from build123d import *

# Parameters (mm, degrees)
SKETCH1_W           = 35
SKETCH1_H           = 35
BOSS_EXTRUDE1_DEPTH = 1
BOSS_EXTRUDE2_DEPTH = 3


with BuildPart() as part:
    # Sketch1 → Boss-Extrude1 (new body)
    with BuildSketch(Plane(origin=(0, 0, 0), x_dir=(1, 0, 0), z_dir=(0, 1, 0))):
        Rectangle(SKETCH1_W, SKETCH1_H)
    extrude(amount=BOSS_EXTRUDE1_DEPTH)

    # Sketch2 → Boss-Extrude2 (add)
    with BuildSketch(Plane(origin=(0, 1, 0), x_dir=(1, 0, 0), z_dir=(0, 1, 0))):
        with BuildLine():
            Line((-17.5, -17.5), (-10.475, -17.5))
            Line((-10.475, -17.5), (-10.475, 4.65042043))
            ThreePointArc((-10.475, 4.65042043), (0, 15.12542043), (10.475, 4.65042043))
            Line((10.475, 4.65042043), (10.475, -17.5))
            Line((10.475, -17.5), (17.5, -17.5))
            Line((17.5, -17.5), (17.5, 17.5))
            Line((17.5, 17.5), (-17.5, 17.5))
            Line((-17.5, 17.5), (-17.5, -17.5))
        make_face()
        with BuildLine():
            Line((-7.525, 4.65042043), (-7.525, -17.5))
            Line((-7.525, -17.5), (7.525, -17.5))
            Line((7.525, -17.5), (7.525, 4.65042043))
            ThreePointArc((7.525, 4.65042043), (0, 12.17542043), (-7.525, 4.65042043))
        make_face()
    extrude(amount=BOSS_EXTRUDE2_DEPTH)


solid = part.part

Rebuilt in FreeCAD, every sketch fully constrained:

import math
import FreeCAD as App
import Part
import Sketcher
from FreeCAD import Vector

doc = App.newDocument("Part")
body = doc.addObject("PartDesign::Body", "Body")

sketch1 = body.newObject("Sketcher::SketchObject", "Sketch")
sketch1.AttachmentSupport = (doc.getObject("XZ_Plane"), [""])
sketch1.MapMode = "FlatFace"
sketch1.addGeometry(Part.LineSegment(Vector(-18, -18, 0), Vector(-18, 18, 0)), False)
sketch1.addGeometry(Part.LineSegment(Vector(-18, 18, 0), Vector(18, 18, 0)), False)
sketch1.addGeometry(Part.LineSegment(Vector(18, 18, 0), Vector(18, -18, 0)), False)
sketch1.addGeometry(Part.LineSegment(Vector(18, -18, 0), Vector(-18, -18, 0)), False)
sketch1.addConstraint(Sketcher.Constraint("Coincident", 0, 2, 1, 1))
sketch1.addConstraint(Sketcher.Constraint("Coincident", 1, 2, 2, 1))
sketch1.addConstraint(Sketcher.Constraint("Coincident", 2, 2, 3, 1))
sketch1.addConstraint(Sketcher.Constraint("Coincident", 3, 2, 0, 1))
sketch1.addConstraint(Sketcher.Constraint("Vertical", 0))
sketch1.addConstraint(Sketcher.Constraint("Horizontal", 1))
sketch1.addConstraint(Sketcher.Constraint("Vertical", 2))
sketch1.addConstraint(Sketcher.Constraint("Horizontal", 3))
sketch1.addConstraint(Sketcher.Constraint("Symmetric", 0, 2, 2, 2, -1, 1))
sketch1.addConstraint(Sketcher.Constraint("Equal", 3, 0))
sketch1.addConstraint(Sketcher.Constraint("DistanceX", 1, 1, 1, 2, 35.0))
pad1 = body.newObject("PartDesign::Pad", "Pad")
pad1.Profile = sketch1
pad1.Length = 1
pad1.Reversed = True

sketch2 = body.newObject("Sketcher::SketchObject", "Sketch001")
sketch2.AttachmentSupport = (doc.getObject("XZ_Plane"), [""])
sketch2.MapMode = "FlatFace"
sketch2.AttachmentOffset = App.Placement(Vector(0, 0, -1), App.Rotation())
sketch2.addGeometry(Part.LineSegment(Vector(-18, 18, 0), Vector(-10, 18, 0)), False)
sketch2.addGeometry(Part.LineSegment(Vector(-10, 18, 0), Vector(-10, -5, 0)), False)
sketch2.addGeometry(Part.ArcOfCircle(Part.Circle(Vector(0, -5, 0), Vector(0, 0, 1), 10), math.radians(180), math.radians(360)), False)
sketch2.addGeometry(Part.LineSegment(Vector(10, -5, 0), Vector(10, 18, 0)), False)
sketch2.addGeometry(Part.LineSegment(Vector(10, 18, 0), Vector(18, 18, 0)), False)
sketch2.addGeometry(Part.LineSegment(Vector(18, 18, 0), Vector(18, -18, 0)), False)
sketch2.addGeometry(Part.LineSegment(Vector(18, -18, 0), Vector(-18, -18, 0)), False)
sketch2.addGeometry(Part.LineSegment(Vector(-18, -18, 0), Vector(-18, 18, 0)), False)
sketch2.addGeometry(Part.LineSegment(Vector(-8, -5, 0), Vector(-8, 18, 0)), False)
sketch2.addGeometry(Part.LineSegment(Vector(-8, 18, 0), Vector(8, 18, 0)), False)
sketch2.addGeometry(Part.LineSegment(Vector(8, 18, 0), Vector(8, -5, 0)), False)
sketch2.addGeometry(Part.ArcOfCircle(Part.Circle(Vector(0, -5, 0), Vector(0, 0, 1), 8), math.radians(180), math.radians(360)), False)
sketch2.addConstraint(Sketcher.Constraint("Coincident", 0, 2, 1, 1))
sketch2.addConstraint(Sketcher.Constraint("Tangent", 1, 2, 2, 1))
sketch2.addConstraint(Sketcher.Constraint("Tangent", 2, 2, 3, 1))
sketch2.addConstraint(Sketcher.Constraint("Coincident", 3, 2, 4, 1))
sketch2.addConstraint(Sketcher.Constraint("Coincident", 4, 2, 5, 1))
sketch2.addConstraint(Sketcher.Constraint("Coincident", 5, 2, 6, 1))
sketch2.addConstraint(Sketcher.Constraint("Coincident", 6, 2, 7, 1))
sketch2.addConstraint(Sketcher.Constraint("Coincident", 7, 2, 0, 1))
sketch2.addConstraint(Sketcher.Constraint("Coincident", 8, 2, 9, 1))
sketch2.addConstraint(Sketcher.Constraint("Coincident", 9, 2, 10, 1))
sketch2.addConstraint(Sketcher.Constraint("Tangent", 10, 2, 11, 2))
sketch2.addConstraint(Sketcher.Constraint("Tangent", 11, 1, 8, 1))
sketch2.addConstraint(Sketcher.Constraint("Horizontal", 0))
sketch2.addConstraint(Sketcher.Constraint("Vertical", 1))
sketch2.addConstraint(Sketcher.Constraint("Vertical", 3))
sketch2.addConstraint(Sketcher.Constraint("Horizontal", 4))
sketch2.addConstraint(Sketcher.Constraint("Vertical", 5))
sketch2.addConstraint(Sketcher.Constraint("Horizontal", 6))
sketch2.addConstraint(Sketcher.Constraint("Vertical", 7))
sketch2.addConstraint(Sketcher.Constraint("Vertical", 8))
sketch2.addConstraint(Sketcher.Constraint("Horizontal", 9))
sketch2.addConstraint(Sketcher.Constraint("Vertical", 10))
sketch2.addConstraint(Sketcher.Constraint("Coincident", 11, 3, 2, 3))
sketch2.addConstraint(Sketcher.Constraint("Symmetric", 4, 2, 6, 2, -1, 1))
sketch2.addConstraint(Sketcher.Constraint("Symmetric", 0, 2, 3, 2, -2))
sketch2.addConstraint(Sketcher.Constraint("Horizontal", 7, 2, 8, 2))
sketch2.addConstraint(Sketcher.Constraint("Equal", 6, 5))
sketch2.addConstraint(Sketcher.Constraint("DistanceX", 6, 2, 6, 1, 35.0))
sketch2.addConstraint(Sketcher.Constraint("Radius", 2, 10.475))
sketch2.addConstraint(Sketcher.Constraint("Radius", 11, 7.525))
sketch2.addConstraint(Sketcher.Constraint("DistanceY", 1, 2, 1, 1, 22.15042))
pad2 = body.newObject("PartDesign::Pad", "Pad001")
pad2.Profile = sketch2
pad2.Length = 3
pad2.Reversed = True

doc.recompute()
